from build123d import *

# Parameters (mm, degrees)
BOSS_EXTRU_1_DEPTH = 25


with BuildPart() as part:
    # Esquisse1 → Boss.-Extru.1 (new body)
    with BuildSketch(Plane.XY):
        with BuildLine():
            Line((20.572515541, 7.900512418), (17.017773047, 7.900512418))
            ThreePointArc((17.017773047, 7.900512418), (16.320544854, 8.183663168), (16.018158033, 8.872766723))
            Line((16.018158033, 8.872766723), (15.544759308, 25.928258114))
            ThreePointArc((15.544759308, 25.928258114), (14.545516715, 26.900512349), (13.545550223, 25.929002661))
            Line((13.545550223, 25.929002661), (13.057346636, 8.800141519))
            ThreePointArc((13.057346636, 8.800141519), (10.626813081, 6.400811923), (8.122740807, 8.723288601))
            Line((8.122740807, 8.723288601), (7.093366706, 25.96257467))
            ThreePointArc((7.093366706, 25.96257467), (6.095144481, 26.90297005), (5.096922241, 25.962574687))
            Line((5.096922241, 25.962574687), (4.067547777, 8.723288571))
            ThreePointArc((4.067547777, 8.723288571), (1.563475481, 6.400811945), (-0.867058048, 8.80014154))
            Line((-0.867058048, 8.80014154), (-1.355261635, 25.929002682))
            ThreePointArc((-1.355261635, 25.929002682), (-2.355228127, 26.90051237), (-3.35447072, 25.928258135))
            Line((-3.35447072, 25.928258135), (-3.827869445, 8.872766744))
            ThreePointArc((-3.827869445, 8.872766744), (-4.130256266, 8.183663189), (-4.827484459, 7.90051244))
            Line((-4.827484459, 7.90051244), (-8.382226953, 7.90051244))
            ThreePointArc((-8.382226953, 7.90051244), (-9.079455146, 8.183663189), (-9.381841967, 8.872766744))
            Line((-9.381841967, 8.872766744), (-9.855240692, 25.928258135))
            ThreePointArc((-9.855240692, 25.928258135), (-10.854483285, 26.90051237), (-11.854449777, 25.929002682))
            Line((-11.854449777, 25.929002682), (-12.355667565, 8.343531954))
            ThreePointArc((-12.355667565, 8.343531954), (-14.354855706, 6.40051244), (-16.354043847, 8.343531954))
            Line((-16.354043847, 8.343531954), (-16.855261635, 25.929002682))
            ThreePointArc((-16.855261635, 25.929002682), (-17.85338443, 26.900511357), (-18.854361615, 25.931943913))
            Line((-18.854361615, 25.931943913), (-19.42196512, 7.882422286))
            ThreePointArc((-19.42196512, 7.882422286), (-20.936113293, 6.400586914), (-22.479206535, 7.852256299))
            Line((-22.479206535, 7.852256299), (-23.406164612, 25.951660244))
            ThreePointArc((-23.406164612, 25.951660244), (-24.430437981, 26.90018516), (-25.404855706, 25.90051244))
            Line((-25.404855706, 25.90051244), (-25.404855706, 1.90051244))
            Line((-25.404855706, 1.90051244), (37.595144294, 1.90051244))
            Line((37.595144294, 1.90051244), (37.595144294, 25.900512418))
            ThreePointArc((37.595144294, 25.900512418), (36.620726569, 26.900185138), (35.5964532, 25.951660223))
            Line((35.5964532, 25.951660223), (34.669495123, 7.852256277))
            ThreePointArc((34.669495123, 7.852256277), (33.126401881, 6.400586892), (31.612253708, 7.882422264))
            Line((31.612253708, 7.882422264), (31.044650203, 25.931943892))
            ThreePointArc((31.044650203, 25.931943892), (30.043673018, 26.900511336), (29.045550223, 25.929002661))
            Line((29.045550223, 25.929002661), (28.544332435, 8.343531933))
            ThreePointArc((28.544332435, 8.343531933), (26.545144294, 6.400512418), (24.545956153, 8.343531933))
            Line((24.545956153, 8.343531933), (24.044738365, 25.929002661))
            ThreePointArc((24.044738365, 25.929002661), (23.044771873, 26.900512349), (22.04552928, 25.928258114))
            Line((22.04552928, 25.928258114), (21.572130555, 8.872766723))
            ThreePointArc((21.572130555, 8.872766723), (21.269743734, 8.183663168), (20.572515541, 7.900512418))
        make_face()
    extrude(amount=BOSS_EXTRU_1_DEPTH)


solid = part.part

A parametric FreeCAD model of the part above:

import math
import FreeCAD as App
import Part
import Sketcher

V = App.Vector
Q = App.Units.Quantity

doc = App.newDocument("Part")
body = doc.addObject("PartDesign::Body", "Body")

sketch1 = doc.addObject("Sketcher::SketchObject", "Sketch")
body.addObject(sketch1)
sketch1.AttachmentSupport = (doc.XY_Plane, [""])
sketch1.MapMode = "FlatFace"
sketch1.addGeometry([
    Part.LineSegment(V(20.6, 7.9, 0), V(17, 7.9, 0)),
    Part.ArcOfCircle(Part.Circle(V(17, 8.9, 0), V(0, 0, 1), 1), math.radians(-178), math.radians(-90)),
    Part.LineSegment(V(16, 8.9, 0), V(15.5, 25.9, 0)),
    Part.ArcOfCircle(Part.Circle(V(14.5, 25.9, 0), V(0, 0, 1), 1), math.radians(2), math.radians(178)),
    Part.LineSegment(V(13.5, 25.9, 0), V(13.1, 8.8, 0)),
    Part.ArcOfCircle(Part.Circle(V(10.6, 8.9, 0), V(0, 0, 1), 2.5), math.radians(-177), math.radians(-2)),
    Part.LineSegment(V(8.1, 8.7, 0), V(7.1, 26, 0)),
    Part.ArcOfCircle(Part.Circle(V(6.1, 25.9, 0), V(0, 0, 1), 1), math.radians(3), math.radians(177)),
    Part.LineSegment(V(5.1, 26, 0), V(4.1, 8.7, 0)),
    Part.ArcOfCircle(Part.Circle(V(1.6, 8.9, 0), V(0, 0, 1), 2.5), math.radians(-178), math.radians(-3)),
    Part.LineSegment(V(-0.9, 8.8, 0), V(-1.4, 25.9, 0)),
    Part.ArcOfCircle(Part.Circle(V(-2.4, 25.9, 0), V(0, 0, 1), 1), math.radians(2), math.radians(178)),
    Part.LineSegment(V(-3.4, 25.9, 0), V(-3.8, 8.9, 0)),
    Part.ArcOfCircle(Part.Circle(V(-4.8, 8.9, 0), V(0, 0, 1), 1), math.radians(-90), math.radians(-2)),
    Part.LineSegment(V(-4.8, 7.9, 0), V(-8.4, 7.9, 0)),
    Part.ArcOfCircle(Part.Circle(V(-8.4, 8.9, 0), V(0, 0, 1), 1), math.radians(-178), math.radians(-90)),
    Part.LineSegment(V(-9.4, 8.9, 0), V(-9.9, 25.9, 0)),
    Part.ArcOfCircle(Part.Circle(V(-10.9, 25.9, 0), V(0, 0, 1), 1), math.radians(2), math.radians(178)),
    Part.LineSegment(V(-11.9, 25.9, 0), V(-12.4, 8.3, 0)),
    Part.ArcOfCircle(Part.Circle(V(-14.4, 8.4, 0), V(0, 0, 1), 2), math.radians(-178), math.radians(-2)),
    Part.LineSegment(V(-16.4, 8.3, 0), V(-16.9, 25.9, 0)),
    Part.ArcOfCircle(Part.Circle(V(-17.9, 25.9, 0), V(0, 0, 1), 1), math.radians(2), math.radians(178)),
    Part.LineSegment(V(-18.9, 25.9, 0), V(-19.4, 7.9, 0)),
    Part.ArcOfCircle(Part.Circle(V(-21, 7.9, 0), V(0, 0, 1), 1.5), math.radians(-177), math.radians(-2)),
    Part.LineSegment(V(-22.5, 7.9, 0), V(-23.4, 26, 0)),
    Part.ArcOfCircle(Part.Circle(V(-24.4, 25.9, 0), V(0, 0, 1), 1), math.radians(3), math.radians(180)),
    Part.LineSegment(V(-25.4, 25.9, 0), V(-25.4, 1.9, 0)),
    Part.LineSegment(V(-25.4, 1.9, 0), V(37.6, 1.9, 0)),
    Part.LineSegment(V(37.6, 1.9, 0), V(37.6, 25.9, 0)),
    Part.ArcOfCircle(Part.Circle(V(36.6, 25.9, 0), V(0, 0, 1), 1), math.radians(0), math.radians(177)),
    Part.LineSegment(V(35.6, 26, 0), V(34.7, 7.9, 0)),
    Part.ArcOfCircle(Part.Circle(V(33.1, 7.9, 0), V(0, 0, 1), 1.5), math.radians(-178), math.radians(-3)),
    Part.LineSegment(V(31.6, 7.9, 0), V(31, 25.9, 0)),
    Part.ArcOfCircle(Part.Circle(V(30, 25.9, 0), V(0, 0, 1), 1), math.radians(2), math.radians(178)),
    Part.LineSegment(V(29, 25.9, 0), V(28.5, 8.3, 0)),
    Part.ArcOfCircle(Part.Circle(V(26.5, 8.4, 0), V(0, 0, 1), 2), math.radians(-178), math.radians(-2)),
    Part.LineSegment(V(24.5, 8.3, 0), V(24, 25.9, 0)),
    Part.ArcOfCircle(Part.Circle(V(23, 25.9, 0), V(0, 0, 1), 1), math.radians(2), math.radians(178)),
    Part.LineSegment(V(22, 25.9, 0), V(21.6, 8.9, 0)),
    Part.ArcOfCircle(Part.Circle(V(20.6, 8.9, 0), V(0, 0, 1), 1), math.radians(-90), math.radians(-2)),
], False)
sketch1.addConstraint([
    Sketcher.Constraint("Tangent", 0, 2, 1, 2),
    Sketcher.Constraint("Tangent", 1, 1, 2, 1),
    Sketcher.Constraint("Tangent", 2, 2, 3, 1),
    Sketcher.Constraint("Tangent", 3, 2, 4, 1),
    Sketcher.Constraint("Tangent", 4, 2, 5, 2),
    Sketcher.Constraint("Tangent", 5, 1, 6, 1),
    Sketcher.Constraint("Tangent", 6, 2, 7, 1),
    Sketcher.Constraint("Tangent", 7, 2, 8, 1),
    Sketcher.Constraint("Tangent", 8, 2, 9, 2),
    Sketcher.Constraint("Tangent", 9, 1, 10, 1),
    Sketcher.Constraint("Tangent", 10, 2, 11, 1),
    Sketcher.Constraint("Tangent", 11, 2, 12, 1),
    Sketcher.Constraint("Tangent", 12, 2, 13, 2),
    Sketcher.Constraint("Tangent", 13, 1, 14, 1),
    Sketcher.Constraint("Tangent", 14, 2, 15, 2),
    Sketcher.Constraint("Tangent", 15, 1, 16, 1),
    Sketcher.Constraint("Tangent", 16, 2, 17, 1),
    Sketcher.Constraint("Tangent", 17, 2, 18, 1),
    Sketcher.Constraint("Tangent", 18, 2, 19, 2),
    Sketcher.Constraint("Tangent", 19, 1, 20, 1),
    Sketcher.Constraint("Tangent", 20, 2, 21, 1),
    Sketcher.Constraint("Tangent", 21, 2, 22, 1),
    Sketcher.Constraint("Tangent", 22, 2, 23, 2),
    Sketcher.Constraint("Tangent", 23, 1, 24, 1),
    Sketcher.Constraint("Tangent", 24, 2, 25, 1),
    Sketcher.Constraint("Tangent", 25, 2, 26, 1),
    Sketcher.Constraint("Coincident", 26, 2, 27, 1),
    Sketcher.Constraint("Coincident", 27, 2, 28, 1),
    Sketcher.Constraint("Tangent", 28, 2, 29, 1),
    Sketcher.Constraint("Tangent", 29, 2, 30, 1),
    Sketcher.Constraint("Tangent", 30, 2, 31, 2),
    Sketcher.Constraint("Tangent", 31, 1, 32, 1),
    Sketcher.Constraint("Tangent", 32, 2, 33, 1),
    Sketcher.Constraint("Tangent", 33, 2, 34, 1),
    Sketcher.Constraint("Tangent", 34, 2, 35, 2),
    Sketcher.Constraint("Tangent", 35, 1, 36, 1),
    Sketcher.Constraint("Tangent", 36, 2, 37, 1),
    Sketcher.Constraint("Tangent", 37, 2, 38, 1),
    Sketcher.Constraint("Tangent", 38, 2, 39, 2),
    Sketcher.Constraint("Tangent", 39, 1, 0, 1),
    Sketcher.Constraint("Horizontal", 0),
    Sketcher.Constraint("Horizontal", 14),
    Sketcher.Constraint("Vertical", 26),
    Sketcher.Constraint("Horizontal", 27),
    Sketcher.Constraint("Vertical", 28),
    Sketcher.Constraint("Equal", 1, 3),
    Sketcher.Constraint("Equal", 3, 7),
    Sketcher.Constraint("Equal", 5, 9),
    Sketcher.Constraint("Equal", 7, 11),
    Sketcher.Constraint("Equal", 11, 13),
    Sketcher.Constraint("Equal", 13, 15),
    Sketcher.Constraint("Equal", 15, 17),
    Sketcher.Constraint("Equal", 17, 21),
    Sketcher.Constraint("Equal", 21, 25),
    Sketcher.Constraint("Equal", 25, 29),
    Sketcher.Constraint("Equal", 23, 31),
    Sketcher.Constraint("Equal", 29, 33),
    Sketcher.Constraint("Equal", 19, 35),
    Sketcher.Constraint("Equal", 33, 37),
    Sketcher.Constraint("Equal", 37, 39),
    Sketcher.Constraint("Parallel", 2, 16),
    Sketcher.Constraint("Parallel", 4, 18),
    Sketcher.Constraint("Parallel", 10, 20),
    Sketcher.Constraint("Parallel", 18, 34),
    Sketcher.Constraint("Parallel", 20, 36),
    Sketcher.Constraint("Parallel", 12, 38),
    Sketcher.Constraint("Horizontal", 5, 3, 9, 3),
    Sketcher.Constraint("Horizontal", 3, 3, 11, 3),
    Sketcher.Constraint("Horizontal", 1, 3, 13, 3),
    Sketcher.Constraint("Horizontal", 11, 3, 17, 3),
    Sketcher.Constraint("Horizontal", 17, 3, 21, 3),
    Sketcher.Constraint("Horizontal", 21, 3, 25, 3),
    Sketcher.Constraint("Horizontal", 25, 3, 29, 3),
    Sketcher.Constraint("Horizontal", 23, 3, 31, 3),
    Sketcher.Constraint("Horizontal", 29, 3, 33, 3),
    Sketcher.Constraint("Horizontal", 19, 3, 35, 3),
    Sketcher.Constraint("Horizontal", 33, 3, 37, 3),
    Sketcher.Constraint("Horizontal", 6, 2, 7, 2),
    Sketcher.Constraint("Horizontal", 4, 2, 9, 1),
    Sketcher.Constraint("Horizontal", 2, 2, 11, 2),
    Sketcher.Constraint("Horizontal", 24, 2, 29, 2),
    Sketcher.Constraint("Horizontal", 22, 2, 31, 1),
    Sketcher.Constraint("Equal", 0, 14),
    Sketcher.Constraint("Radius", 1, Q("1 mm")),
    Sketcher.Constraint("Radius", 19, Q("2 mm")),
    Sketcher.Constraint("DistanceX", 27, 1, 27, 2, Q("63 mm")),
    Sketcher.Constraint("DistanceY", 26, 2, 26, 1, Q("24 mm")),
    Sketcher.Constraint("Radius", 5, Q("2.47 mm")),
    Sketcher.Constraint("Radius", 23, Q("1.53 mm")),
    Sketcher.Constraint("DistanceY", 1, 3, 3, 3, Q("17 mm")),
    Sketcher.Constraint("DistanceX", 19, 3, 11, 3, Q("12 mm")),
    Sketcher.Constraint("DistanceX", 21, 3, 17, 3, Q("7 mm")),
    Sketcher.Constraint("DistanceX", 11, 3, 3, 3, Q("16.9 mm")),
    Sketcher.Constraint("DistanceY", 19, 3, 15, 3, Q("0.5 mm")),
    Sketcher.Constraint("DistanceY", 5, 3, 1, 3, Q("0.03 mm")),
    Sketcher.Constraint("DistanceY", 23, 3, 19, 3, Q("0.47 mm")),
    Sketcher.Constraint("DistanceX", 2, 2, 1, 1, Q("0.473399 mm")),
    Sketcher.Constraint("Distance", 6, Q("17.269991 mm")),
    Sketcher.Constraint("DistanceX", -1, 1, 5, 3, Q("10.588349 mm")),
    Sketcher.Constraint("DistanceY", -1, 1, 7, 3, Q("25.90297 mm")),
    Sketcher.Constraint("DistanceX", 23, 3, -1, 1, Q("20.951209 mm")),
])
pad1 = doc.addObject("PartDesign::Pad", "Pad")
body.addObject(pad1)
pad1.Profile = sketch1
pad1.Length = 25

doc.recompute()
